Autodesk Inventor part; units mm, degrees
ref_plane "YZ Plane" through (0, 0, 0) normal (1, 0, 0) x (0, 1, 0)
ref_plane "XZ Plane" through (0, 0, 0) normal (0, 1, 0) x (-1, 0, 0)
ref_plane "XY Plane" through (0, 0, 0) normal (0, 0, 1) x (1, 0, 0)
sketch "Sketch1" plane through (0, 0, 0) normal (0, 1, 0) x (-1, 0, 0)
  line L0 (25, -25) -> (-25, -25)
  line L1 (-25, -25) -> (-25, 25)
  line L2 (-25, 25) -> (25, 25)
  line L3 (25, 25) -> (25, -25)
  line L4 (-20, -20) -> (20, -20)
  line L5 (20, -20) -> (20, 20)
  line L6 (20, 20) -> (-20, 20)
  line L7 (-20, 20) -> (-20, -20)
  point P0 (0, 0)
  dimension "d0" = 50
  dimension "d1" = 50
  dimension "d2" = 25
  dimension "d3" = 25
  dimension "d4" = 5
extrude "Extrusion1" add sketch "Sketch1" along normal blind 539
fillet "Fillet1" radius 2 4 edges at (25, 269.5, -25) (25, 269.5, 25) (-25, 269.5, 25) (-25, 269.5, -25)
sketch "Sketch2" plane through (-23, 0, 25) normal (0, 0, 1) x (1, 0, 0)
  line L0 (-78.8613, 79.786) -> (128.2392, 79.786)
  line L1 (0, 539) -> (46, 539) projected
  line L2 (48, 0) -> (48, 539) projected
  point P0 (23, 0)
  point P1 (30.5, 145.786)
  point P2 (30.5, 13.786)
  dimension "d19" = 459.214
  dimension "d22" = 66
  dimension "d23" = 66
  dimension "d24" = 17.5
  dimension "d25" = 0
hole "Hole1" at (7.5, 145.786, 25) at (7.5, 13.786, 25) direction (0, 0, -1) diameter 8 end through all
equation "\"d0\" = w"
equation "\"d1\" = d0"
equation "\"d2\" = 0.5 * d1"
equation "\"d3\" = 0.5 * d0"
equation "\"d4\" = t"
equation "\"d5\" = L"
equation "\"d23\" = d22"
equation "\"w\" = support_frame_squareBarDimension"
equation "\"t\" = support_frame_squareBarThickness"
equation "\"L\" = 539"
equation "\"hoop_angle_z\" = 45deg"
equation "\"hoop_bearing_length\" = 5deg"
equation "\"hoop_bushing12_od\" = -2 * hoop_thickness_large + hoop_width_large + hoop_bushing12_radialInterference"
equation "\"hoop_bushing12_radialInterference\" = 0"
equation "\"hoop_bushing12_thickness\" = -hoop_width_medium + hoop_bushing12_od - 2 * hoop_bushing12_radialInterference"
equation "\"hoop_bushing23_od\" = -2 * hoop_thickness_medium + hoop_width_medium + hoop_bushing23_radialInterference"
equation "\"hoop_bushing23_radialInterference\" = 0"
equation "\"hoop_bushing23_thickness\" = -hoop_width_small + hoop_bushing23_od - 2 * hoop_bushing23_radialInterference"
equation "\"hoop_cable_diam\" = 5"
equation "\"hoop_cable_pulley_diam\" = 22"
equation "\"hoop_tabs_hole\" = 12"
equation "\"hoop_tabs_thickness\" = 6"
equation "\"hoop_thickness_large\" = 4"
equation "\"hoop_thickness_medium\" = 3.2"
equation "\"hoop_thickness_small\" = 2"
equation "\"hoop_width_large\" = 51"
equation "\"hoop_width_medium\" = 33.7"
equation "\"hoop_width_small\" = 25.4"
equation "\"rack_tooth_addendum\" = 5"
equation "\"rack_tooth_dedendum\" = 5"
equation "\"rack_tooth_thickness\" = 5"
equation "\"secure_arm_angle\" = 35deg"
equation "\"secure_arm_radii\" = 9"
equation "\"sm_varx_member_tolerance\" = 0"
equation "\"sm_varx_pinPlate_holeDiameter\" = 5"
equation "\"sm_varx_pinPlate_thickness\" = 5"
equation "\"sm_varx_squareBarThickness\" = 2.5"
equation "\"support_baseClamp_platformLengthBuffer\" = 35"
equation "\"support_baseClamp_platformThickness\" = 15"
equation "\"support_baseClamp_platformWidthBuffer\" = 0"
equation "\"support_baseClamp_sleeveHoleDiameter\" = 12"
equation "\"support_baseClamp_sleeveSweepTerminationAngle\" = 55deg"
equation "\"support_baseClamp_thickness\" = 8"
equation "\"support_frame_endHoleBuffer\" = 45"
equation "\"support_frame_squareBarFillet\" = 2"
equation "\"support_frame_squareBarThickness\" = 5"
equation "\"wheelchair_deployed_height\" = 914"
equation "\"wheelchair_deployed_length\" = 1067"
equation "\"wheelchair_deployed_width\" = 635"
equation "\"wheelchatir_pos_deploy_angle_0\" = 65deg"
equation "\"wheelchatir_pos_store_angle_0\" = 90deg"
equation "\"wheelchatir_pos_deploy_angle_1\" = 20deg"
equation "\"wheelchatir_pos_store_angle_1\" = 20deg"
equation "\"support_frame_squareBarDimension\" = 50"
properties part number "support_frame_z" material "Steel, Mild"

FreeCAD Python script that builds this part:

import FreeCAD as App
import Part
import Sketcher

V = App.Vector


def edges_at(feature, points):
    """Names of the edges that pass closest to the given points."""
    edges = feature.Shape.Edges
    near = lambda p: min(range(len(edges)), key=lambda i: edges[i].distToShape(Part.Vertex(*p))[0])
    return sorted({f"Edge{near(p) + 1}" for p in points})


def add_polygon(sketch, points):
    """Adds a closed chain of lines whose ends are joined by coincident constraints."""
    first, n = sketch.GeometryCount, len(points)
    for a, b in zip(points, points[1:] + points[:1]):
        sketch.addGeometry(Part.LineSegment(App.Vector(*a, 0), App.Vector(*b, 0)), False)
    for i in range(n):
        sketch.addConstraint(Sketcher.Constraint("Coincident", first + i, 2, first + (i + 1) % n, 1))

doc = App.newDocument("Part")
body = doc.addObject("PartDesign::Body", "Body")

sketch1 = body.newObject("Sketcher::SketchObject", "Sketch")
sketch1.AttachmentSupport = (doc.getObject("XZ_Plane"), [""])
sketch1.MapMode = "FlatFace"
add_polygon(sketch1, [(25, -25), (-25, -25), (-25, 25), (25, 25)])
add_polygon(sketch1, [(-20, -20), (20, -20), (20, 20), (-20, 20)])
sketch1.addConstraint([
    Sketcher.Constraint("Horizontal", 0),
    Sketcher.Constraint("Vertical", 1),
    Sketcher.Constraint("Horizontal", 2),
    Sketcher.Constraint("Vertical", 3),
    Sketcher.Constraint("Horizontal", 4),
    Sketcher.Constraint("Vertical", 5),
    Sketcher.Constraint("Horizontal", 6),
    Sketcher.Constraint("Vertical", 7),
    Sketcher.Constraint("Symmetric", 0, 2, 2, 2, -1, 1),
    Sketcher.Constraint("Symmetric", 4, 2, 6, 2, -1, 1),
    Sketcher.Constraint("Equal", 2, 1),
    Sketcher.Constraint("Equal", 6, 5),
    Sketcher.Constraint("DistanceX", 0, 2, 0, 1, 50.0),
    Sketcher.Constraint("DistanceX", 4, 2, 3, 2, 5.0),
])
pad1 = body.newObject("PartDesign::Pad", "Pad")
pad1.Profile = sketch1
pad1.Length = 539
pad1.Reversed = True
doc.recompute()

fillet = body.newObject("PartDesign::Fillet", "Fillet")
fillet.Base = (pad1, edges_at(pad1, [
    (25, 269.5, -25),
    (25, 269.5, 25),
    (-25, 269.5, 25),
    (-25, 269.5, -25),
]))
fillet.Radius = 2

sketch2 = body.newObject("Sketcher::SketchObject", "Sketch001")
sketch2.AttachmentSupport = (doc.getObject("XY_Plane"), [""])
sketch2.MapMode = "FlatFace"
sketch2.AttachmentOffset = App.Placement(V(0, 0, 25), App.Rotation())
sketch2.addGeometry([
    Part.Circle(V(7.5, 145.8, 0), V(0, 0, 1), 4),
    Part.Circle(V(7.5, 13.8, 0), V(0, 0, 1), 4),
], False)
sketch2.addConstraint([
    Sketcher.Constraint("Equal", 0, 1),
    Sketcher.Constraint("Vertical", 0, 3, 1, 3),
    Sketcher.Constraint("Diameter", 0, 8.0),
    Sketcher.Constraint("DistanceY", 1, 3, 0, 3, 132.0),
    Sketcher.Constraint("DistanceX", -1, 1, 0, 3, 7.5),
    Sketcher.Constraint("DistanceY", -1, 1, 0, 3, 145.786),
])
doc.recompute()
hole = body.newObject("PartDesign::Hole", "Hole")
hole.Profile = sketch2
hole.ThreadType = "None"
hole.Diameter = 8
hole.DepthType = "ThroughAll"

doc.recompute()
